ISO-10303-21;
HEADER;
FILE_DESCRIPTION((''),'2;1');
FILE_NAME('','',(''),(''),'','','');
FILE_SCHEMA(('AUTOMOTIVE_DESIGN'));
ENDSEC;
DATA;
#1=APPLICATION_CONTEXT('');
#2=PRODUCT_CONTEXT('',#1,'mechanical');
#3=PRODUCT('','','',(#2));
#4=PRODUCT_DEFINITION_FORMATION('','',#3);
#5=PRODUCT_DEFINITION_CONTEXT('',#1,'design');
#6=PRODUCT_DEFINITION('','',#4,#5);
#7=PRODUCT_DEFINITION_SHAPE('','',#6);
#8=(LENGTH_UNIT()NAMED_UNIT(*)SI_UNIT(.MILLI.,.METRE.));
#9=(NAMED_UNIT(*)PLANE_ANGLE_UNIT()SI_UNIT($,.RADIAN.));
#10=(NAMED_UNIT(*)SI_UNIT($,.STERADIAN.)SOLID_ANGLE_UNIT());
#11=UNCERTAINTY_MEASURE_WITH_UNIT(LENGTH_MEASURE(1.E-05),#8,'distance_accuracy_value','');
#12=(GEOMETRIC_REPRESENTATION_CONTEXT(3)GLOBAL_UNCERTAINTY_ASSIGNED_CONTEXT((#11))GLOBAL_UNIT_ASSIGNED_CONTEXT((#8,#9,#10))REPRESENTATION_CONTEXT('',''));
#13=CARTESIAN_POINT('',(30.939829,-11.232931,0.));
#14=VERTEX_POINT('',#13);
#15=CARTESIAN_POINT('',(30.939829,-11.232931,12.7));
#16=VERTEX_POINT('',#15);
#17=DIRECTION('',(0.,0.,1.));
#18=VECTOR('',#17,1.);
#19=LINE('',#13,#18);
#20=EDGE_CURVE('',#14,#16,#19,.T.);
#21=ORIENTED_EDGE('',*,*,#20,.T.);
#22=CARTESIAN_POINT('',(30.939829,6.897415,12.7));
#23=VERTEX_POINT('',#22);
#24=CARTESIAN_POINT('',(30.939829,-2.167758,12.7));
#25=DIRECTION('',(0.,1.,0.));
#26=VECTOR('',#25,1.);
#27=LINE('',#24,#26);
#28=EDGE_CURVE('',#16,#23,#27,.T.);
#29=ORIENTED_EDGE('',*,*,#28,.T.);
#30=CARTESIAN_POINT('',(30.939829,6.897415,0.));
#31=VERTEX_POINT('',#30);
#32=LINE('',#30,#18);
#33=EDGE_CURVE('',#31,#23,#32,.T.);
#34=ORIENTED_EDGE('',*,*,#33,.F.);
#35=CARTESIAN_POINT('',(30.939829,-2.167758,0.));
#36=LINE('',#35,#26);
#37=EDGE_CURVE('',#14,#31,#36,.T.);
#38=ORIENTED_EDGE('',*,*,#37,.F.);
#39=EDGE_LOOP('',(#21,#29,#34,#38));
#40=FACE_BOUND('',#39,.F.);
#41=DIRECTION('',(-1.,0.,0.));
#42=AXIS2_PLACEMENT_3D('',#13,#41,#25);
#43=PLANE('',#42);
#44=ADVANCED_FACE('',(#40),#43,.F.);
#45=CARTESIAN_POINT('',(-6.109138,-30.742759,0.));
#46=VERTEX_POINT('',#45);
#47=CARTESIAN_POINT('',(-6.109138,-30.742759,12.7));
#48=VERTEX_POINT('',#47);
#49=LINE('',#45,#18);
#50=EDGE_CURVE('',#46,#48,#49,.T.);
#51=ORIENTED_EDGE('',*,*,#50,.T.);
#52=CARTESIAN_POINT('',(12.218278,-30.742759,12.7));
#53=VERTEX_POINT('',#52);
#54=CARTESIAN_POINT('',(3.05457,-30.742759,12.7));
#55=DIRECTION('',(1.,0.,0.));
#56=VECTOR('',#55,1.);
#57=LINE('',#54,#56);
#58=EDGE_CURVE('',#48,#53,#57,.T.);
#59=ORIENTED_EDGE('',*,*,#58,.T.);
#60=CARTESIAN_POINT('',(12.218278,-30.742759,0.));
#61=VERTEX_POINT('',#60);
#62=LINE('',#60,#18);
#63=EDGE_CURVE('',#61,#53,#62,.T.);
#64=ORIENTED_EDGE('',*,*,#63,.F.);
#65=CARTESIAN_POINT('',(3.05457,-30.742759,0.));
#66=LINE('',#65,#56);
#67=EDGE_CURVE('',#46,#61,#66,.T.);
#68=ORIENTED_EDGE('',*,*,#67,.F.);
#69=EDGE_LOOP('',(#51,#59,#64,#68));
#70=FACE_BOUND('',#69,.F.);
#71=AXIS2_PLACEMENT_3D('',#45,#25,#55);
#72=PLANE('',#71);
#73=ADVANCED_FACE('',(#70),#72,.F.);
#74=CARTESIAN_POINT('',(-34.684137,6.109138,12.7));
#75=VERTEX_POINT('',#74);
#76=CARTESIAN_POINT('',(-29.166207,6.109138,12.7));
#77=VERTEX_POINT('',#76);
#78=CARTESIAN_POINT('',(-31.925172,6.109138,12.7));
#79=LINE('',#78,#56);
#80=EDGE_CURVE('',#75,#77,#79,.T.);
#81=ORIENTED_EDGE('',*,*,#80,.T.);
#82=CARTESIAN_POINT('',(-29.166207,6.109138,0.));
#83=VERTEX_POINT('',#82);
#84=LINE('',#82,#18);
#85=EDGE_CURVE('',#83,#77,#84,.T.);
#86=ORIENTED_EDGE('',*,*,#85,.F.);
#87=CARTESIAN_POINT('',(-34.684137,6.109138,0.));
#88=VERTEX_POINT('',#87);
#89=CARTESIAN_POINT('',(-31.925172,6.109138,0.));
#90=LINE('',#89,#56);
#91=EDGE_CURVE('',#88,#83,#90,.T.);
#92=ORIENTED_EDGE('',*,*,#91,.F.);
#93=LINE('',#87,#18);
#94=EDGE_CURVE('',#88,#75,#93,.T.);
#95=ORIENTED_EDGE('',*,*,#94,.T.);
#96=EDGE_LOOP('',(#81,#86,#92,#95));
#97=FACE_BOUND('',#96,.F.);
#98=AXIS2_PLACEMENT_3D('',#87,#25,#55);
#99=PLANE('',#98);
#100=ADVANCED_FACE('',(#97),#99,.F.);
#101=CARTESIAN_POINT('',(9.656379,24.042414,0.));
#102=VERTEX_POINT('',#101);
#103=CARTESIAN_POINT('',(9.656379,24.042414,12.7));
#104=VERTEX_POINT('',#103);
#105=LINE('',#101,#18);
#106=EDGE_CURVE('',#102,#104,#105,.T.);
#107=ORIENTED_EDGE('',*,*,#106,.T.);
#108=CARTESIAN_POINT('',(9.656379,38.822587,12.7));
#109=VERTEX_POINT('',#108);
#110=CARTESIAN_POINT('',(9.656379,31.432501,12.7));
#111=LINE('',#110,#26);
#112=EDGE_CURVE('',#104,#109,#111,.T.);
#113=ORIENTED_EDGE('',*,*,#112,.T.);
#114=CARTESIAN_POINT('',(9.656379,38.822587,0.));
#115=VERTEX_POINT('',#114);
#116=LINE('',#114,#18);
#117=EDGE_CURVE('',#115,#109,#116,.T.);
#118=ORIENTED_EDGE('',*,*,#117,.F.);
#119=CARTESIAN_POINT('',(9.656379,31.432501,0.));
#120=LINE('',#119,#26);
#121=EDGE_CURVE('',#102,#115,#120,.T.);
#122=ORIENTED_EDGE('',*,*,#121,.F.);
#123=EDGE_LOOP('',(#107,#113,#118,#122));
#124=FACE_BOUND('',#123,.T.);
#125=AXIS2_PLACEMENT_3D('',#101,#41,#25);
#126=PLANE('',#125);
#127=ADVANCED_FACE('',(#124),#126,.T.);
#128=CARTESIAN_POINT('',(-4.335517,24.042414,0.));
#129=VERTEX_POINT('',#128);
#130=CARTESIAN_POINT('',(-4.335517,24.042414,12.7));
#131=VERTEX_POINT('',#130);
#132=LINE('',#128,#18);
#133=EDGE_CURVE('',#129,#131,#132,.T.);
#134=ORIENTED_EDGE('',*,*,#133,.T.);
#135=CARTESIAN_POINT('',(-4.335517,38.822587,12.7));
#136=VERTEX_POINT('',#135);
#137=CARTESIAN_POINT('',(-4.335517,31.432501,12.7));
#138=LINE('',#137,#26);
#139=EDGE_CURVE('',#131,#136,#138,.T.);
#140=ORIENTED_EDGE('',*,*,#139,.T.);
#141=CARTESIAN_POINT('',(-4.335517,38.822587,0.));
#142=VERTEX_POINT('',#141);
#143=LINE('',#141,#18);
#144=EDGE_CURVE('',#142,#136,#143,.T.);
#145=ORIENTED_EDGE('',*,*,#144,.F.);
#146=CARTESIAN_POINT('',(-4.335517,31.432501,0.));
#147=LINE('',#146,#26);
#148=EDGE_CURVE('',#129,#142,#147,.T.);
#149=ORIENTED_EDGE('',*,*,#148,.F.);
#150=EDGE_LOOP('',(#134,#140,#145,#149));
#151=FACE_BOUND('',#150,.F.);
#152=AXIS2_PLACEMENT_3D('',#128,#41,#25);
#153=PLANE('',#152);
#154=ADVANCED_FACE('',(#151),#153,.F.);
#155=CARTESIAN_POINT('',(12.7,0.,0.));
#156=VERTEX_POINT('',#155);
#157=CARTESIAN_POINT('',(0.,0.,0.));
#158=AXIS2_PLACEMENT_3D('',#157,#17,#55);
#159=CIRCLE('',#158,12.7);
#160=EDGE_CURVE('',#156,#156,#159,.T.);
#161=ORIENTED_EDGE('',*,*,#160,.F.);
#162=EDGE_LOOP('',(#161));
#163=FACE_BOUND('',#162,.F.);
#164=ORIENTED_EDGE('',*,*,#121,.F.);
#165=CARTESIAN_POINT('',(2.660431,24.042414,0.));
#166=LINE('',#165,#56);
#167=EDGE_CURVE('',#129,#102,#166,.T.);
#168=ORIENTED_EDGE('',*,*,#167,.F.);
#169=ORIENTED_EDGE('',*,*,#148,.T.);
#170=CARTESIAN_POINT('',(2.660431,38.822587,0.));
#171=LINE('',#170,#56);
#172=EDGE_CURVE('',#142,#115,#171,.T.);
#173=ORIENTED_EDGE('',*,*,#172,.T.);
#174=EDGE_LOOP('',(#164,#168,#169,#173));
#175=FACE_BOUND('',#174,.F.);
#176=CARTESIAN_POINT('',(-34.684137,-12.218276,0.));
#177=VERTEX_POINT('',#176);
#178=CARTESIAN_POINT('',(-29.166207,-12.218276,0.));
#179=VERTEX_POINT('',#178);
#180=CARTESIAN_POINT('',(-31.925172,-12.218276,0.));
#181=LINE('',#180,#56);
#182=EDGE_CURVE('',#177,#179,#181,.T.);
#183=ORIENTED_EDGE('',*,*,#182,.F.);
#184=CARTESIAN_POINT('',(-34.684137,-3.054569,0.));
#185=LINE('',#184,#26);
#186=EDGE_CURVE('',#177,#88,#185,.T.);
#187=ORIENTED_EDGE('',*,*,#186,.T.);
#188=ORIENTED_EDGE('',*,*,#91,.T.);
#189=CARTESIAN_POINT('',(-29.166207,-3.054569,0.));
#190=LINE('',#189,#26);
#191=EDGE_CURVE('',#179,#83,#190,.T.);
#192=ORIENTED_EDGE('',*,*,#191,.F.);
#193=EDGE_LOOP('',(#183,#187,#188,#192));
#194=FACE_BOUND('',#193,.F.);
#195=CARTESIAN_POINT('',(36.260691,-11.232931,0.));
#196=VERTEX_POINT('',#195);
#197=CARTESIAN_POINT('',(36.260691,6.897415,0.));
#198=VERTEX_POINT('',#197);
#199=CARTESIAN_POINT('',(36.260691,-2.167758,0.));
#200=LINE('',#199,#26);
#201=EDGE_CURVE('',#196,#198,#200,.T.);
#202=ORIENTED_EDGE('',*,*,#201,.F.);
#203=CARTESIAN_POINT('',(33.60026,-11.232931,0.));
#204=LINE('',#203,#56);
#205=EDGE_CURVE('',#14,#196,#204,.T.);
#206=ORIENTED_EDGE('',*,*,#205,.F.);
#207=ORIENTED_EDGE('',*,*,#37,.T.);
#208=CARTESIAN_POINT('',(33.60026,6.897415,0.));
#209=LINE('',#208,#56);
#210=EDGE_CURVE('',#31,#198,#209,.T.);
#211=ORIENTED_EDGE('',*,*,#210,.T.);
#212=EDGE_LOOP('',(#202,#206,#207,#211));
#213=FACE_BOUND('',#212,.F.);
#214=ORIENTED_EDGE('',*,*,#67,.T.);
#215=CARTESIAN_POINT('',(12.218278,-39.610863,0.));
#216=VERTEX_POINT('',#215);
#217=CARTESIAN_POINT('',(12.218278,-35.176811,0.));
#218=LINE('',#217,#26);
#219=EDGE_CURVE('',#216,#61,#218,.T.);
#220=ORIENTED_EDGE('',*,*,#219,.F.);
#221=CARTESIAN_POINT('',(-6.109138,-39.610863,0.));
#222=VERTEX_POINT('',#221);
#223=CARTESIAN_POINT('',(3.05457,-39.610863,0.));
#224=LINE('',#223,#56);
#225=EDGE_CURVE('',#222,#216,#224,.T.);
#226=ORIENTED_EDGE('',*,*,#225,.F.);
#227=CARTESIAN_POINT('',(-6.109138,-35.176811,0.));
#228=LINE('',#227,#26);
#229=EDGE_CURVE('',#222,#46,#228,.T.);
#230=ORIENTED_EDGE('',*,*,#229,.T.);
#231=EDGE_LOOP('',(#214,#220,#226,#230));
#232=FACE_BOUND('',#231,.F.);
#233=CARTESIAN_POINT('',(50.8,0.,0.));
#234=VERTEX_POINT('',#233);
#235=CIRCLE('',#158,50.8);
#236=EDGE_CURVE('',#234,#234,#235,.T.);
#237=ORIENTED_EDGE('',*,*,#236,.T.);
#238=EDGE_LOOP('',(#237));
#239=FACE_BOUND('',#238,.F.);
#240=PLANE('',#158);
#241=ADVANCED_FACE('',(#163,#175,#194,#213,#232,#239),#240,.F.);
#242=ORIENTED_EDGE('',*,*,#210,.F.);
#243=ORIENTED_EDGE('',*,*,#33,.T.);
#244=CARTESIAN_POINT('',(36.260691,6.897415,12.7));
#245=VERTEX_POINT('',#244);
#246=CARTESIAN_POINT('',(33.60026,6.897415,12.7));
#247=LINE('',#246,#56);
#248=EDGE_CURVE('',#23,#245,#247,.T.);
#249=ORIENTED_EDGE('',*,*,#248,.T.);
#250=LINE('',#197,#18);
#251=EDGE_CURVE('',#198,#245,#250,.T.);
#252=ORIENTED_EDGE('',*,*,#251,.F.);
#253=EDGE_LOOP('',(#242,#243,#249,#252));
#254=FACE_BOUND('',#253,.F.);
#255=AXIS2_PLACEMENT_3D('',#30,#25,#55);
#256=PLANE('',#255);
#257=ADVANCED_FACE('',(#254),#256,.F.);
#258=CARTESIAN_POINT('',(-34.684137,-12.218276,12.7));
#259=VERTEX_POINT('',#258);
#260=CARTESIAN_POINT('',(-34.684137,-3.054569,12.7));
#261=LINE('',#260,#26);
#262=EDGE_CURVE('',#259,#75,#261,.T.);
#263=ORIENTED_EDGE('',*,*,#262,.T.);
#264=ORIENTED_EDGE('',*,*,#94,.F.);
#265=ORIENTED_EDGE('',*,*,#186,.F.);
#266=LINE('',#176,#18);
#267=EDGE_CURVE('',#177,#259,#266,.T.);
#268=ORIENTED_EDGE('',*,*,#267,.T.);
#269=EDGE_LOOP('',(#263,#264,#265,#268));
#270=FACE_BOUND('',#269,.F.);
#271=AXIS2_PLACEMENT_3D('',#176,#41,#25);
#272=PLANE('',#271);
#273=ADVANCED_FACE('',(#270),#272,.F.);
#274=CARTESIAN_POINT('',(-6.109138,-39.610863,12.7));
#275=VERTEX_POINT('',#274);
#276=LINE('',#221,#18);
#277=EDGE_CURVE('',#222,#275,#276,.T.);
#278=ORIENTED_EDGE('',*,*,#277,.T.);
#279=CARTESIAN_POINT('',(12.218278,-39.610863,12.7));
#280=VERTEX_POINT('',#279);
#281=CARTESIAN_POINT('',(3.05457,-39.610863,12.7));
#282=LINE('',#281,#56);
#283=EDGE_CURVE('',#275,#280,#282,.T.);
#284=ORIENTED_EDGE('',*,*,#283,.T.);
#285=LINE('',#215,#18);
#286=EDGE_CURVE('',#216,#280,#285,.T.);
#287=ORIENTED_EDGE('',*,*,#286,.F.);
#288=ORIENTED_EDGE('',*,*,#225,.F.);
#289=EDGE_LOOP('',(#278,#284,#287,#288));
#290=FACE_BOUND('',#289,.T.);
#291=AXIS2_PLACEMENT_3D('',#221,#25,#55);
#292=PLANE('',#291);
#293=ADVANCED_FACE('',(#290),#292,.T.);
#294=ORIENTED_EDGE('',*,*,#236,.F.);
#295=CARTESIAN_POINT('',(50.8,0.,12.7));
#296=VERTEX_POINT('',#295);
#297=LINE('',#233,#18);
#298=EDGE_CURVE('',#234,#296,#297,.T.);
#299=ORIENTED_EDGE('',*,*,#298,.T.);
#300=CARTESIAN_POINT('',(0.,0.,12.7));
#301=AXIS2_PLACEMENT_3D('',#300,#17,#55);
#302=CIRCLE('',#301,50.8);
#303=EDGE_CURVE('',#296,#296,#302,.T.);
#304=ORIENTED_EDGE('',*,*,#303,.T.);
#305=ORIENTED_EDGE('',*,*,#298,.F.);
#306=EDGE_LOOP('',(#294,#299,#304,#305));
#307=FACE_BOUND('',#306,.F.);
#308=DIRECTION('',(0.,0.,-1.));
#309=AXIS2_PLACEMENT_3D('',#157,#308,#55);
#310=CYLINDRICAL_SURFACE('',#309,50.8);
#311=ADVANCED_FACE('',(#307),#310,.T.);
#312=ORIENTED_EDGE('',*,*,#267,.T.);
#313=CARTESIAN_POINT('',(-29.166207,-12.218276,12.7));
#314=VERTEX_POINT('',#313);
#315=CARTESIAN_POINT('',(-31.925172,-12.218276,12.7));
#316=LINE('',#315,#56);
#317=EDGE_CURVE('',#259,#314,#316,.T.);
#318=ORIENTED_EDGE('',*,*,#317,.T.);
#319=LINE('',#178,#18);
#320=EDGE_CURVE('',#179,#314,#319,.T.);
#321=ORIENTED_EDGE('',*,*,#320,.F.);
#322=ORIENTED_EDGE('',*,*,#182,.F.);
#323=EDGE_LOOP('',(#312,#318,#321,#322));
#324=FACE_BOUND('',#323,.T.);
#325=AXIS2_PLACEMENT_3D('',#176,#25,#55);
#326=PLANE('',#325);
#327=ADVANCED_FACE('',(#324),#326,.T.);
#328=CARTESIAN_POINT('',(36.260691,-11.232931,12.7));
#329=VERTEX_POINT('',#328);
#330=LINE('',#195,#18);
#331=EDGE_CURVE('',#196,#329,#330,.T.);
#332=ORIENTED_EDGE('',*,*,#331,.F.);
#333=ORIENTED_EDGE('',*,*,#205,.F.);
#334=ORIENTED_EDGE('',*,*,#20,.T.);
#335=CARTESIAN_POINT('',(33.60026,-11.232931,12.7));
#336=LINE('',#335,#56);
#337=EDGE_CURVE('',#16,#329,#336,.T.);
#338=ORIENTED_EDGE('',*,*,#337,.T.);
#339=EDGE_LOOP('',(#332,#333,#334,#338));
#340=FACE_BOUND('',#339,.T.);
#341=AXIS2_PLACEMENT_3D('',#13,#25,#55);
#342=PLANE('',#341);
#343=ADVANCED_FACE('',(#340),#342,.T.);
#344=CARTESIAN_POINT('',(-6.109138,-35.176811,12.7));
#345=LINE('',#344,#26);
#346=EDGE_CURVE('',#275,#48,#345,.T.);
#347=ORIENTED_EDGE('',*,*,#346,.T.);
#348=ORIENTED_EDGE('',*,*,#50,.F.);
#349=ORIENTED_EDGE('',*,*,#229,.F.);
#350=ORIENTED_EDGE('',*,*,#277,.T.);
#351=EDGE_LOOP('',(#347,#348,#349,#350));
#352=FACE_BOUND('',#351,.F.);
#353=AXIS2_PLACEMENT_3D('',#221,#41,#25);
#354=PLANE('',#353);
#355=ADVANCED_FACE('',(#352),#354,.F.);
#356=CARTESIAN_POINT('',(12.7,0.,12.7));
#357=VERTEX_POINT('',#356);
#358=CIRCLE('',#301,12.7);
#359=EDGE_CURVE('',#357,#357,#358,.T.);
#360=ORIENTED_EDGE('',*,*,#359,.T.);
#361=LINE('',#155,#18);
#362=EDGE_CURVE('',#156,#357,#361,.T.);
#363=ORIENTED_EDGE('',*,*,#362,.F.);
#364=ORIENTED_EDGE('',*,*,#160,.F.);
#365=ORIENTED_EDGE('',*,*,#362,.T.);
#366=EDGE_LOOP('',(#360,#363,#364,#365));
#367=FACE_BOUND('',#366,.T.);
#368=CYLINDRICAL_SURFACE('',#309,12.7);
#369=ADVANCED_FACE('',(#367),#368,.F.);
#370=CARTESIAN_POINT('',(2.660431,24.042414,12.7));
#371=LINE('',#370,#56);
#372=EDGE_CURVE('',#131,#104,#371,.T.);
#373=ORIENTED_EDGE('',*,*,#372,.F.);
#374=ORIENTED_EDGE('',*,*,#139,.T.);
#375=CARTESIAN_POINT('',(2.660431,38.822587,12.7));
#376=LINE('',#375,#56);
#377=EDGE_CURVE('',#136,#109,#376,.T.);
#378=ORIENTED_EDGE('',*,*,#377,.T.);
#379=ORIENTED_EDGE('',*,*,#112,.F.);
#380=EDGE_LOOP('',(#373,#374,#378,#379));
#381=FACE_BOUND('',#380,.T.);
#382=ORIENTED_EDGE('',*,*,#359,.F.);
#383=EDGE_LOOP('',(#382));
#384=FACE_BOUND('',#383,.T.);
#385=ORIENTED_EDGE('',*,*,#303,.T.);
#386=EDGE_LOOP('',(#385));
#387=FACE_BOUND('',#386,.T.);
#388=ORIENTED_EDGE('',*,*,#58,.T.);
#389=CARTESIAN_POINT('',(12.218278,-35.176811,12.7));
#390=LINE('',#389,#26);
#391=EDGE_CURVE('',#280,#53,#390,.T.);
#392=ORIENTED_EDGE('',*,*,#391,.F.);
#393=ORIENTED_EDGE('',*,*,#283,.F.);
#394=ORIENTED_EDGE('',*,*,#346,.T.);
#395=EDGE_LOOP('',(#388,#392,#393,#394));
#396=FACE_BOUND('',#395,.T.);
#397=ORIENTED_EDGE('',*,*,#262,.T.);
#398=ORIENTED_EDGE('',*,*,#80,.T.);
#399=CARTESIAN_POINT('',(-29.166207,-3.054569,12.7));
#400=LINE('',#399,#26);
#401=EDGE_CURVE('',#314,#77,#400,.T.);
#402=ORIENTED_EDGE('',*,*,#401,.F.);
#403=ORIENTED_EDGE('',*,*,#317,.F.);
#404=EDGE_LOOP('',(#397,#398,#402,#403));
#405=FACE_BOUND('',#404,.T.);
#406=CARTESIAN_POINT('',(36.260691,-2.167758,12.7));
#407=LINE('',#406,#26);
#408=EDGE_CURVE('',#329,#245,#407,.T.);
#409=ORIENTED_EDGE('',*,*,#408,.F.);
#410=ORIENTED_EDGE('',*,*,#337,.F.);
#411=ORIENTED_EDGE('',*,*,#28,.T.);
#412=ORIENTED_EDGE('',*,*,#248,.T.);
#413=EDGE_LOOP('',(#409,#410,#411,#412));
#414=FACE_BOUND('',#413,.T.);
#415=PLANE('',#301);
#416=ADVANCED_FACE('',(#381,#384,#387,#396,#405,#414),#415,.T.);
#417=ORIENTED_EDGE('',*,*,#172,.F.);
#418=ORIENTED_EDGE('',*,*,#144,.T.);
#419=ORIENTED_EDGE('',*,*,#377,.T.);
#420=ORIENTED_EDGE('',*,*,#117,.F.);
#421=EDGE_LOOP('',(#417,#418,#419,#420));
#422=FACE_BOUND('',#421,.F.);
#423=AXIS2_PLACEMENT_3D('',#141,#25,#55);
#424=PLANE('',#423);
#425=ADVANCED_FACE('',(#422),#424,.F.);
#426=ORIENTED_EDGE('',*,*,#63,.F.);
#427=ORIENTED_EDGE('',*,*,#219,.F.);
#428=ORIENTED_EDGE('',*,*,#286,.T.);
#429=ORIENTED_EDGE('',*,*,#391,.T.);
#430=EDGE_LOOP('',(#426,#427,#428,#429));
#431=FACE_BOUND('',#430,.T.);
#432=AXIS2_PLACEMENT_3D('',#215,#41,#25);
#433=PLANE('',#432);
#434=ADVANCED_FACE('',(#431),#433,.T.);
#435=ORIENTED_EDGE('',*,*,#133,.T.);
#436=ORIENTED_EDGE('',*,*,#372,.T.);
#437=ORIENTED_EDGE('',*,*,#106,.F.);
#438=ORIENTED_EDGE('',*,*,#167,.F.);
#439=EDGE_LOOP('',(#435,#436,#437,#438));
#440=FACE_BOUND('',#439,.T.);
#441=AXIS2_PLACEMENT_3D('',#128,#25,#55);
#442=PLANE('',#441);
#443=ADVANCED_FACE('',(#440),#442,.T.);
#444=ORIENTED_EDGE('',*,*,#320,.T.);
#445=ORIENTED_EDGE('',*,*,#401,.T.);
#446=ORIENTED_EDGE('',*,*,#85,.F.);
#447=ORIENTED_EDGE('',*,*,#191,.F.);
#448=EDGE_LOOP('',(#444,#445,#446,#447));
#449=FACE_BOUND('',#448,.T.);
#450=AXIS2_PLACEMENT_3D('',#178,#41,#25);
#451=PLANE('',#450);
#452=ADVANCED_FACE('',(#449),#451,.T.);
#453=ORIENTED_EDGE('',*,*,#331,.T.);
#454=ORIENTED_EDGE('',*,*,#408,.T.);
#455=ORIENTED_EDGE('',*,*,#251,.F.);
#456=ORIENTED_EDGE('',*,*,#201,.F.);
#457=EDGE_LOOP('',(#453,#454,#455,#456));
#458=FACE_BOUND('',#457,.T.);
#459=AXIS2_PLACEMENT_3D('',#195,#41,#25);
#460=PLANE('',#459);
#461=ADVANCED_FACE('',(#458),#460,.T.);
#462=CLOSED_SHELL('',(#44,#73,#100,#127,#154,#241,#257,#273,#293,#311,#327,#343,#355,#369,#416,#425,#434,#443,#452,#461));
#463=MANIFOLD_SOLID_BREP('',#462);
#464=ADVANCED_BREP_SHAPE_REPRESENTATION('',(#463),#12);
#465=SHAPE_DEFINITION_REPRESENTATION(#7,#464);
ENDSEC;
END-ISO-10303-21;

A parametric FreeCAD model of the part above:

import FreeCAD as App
import Part
import Sketcher

V = App.Vector
Q = App.Units.Quantity

doc = App.newDocument("Part")
body = doc.addObject("PartDesign::Body", "Body")

sketch1 = body.newObject("Sketcher::SketchObject", "Sketch")
sketch1.AttachmentSupport = (doc.getObject("XY_Plane"), [""])
sketch1.MapMode = "FlatFace"
sketch1.addGeometry([
    Part.Circle(V(0, 0, 0), V(0, 0, 1), 51),
    Part.LineSegment(V(-29, -12, 0), V(-35, -12, 0)),
    Part.LineSegment(V(-35, -12, 0), V(-35, 6, 0)),
    Part.LineSegment(V(-35, 6, 0), V(-29, 6, 0)),
    Part.LineSegment(V(-29, 6, 0), V(-29, -12, 0)),
    Part.LineSegment(V(12, -40, 0), V(-6, -40, 0)),
    Part.LineSegment(V(-6, -40, 0), V(-6, -31, 0)),
    Part.LineSegment(V(-6, -31, 0), V(12, -31, 0)),
    Part.LineSegment(V(12, -31, 0), V(12, -40, 0)),
    Part.LineSegment(V(36, -11, 0), V(31, -11, 0)),
    Part.LineSegment(V(31, -11, 0), V(31, 7, 0)),
    Part.LineSegment(V(31, 7, 0), V(36, 7, 0)),
    Part.LineSegment(V(36, 7, 0), V(36, -11, 0)),
    Part.Circle(V(0, 0, 0), V(0, 0, 1), 13),
    Part.LineSegment(V(10, 24, 0), V(-4, 24, 0)),
    Part.LineSegment(V(-4, 24, 0), V(-4, 39, 0)),
    Part.LineSegment(V(-4, 39, 0), V(10, 39, 0)),
    Part.LineSegment(V(10, 39, 0), V(10, 24, 0)),
], False)
sketch1.addConstraint([
    Sketcher.Constraint("Coincident", 1, 2, 2, 1),
    Sketcher.Constraint("Coincident", 2, 2, 3, 1),
    Sketcher.Constraint("Coincident", 3, 2, 4, 1),
    Sketcher.Constraint("Coincident", 4, 2, 1, 1),
    Sketcher.Constraint("Coincident", 5, 2, 6, 1),
    Sketcher.Constraint("Coincident", 6, 2, 7, 1),
    Sketcher.Constraint("Coincident", 7, 2, 8, 1),
    Sketcher.Constraint("Coincident", 8, 2, 5, 1),
    Sketcher.Constraint("Coincident", 9, 2, 10, 1),
    Sketcher.Constraint("Coincident", 10, 2, 11, 1),
    Sketcher.Constraint("Coincident", 11, 2, 12, 1),
    Sketcher.Constraint("Coincident", 12, 2, 9, 1),
    Sketcher.Constraint("Coincident", 14, 2, 15, 1),
    Sketcher.Constraint("Coincident", 15, 2, 16, 1),
    Sketcher.Constraint("Coincident", 16, 2, 17, 1),
    Sketcher.Constraint("Coincident", 17, 2, 14, 1),
    Sketcher.Constraint("Horizontal", 1),
    Sketcher.Constraint("Vertical", 2),
    Sketcher.Constraint("Horizontal", 3),
    Sketcher.Constraint("Vertical", 4),
    Sketcher.Constraint("Horizontal", 5),
    Sketcher.Constraint("Vertical", 6),
    Sketcher.Constraint("Horizontal", 7),
    Sketcher.Constraint("Vertical", 8),
    Sketcher.Constraint("Horizontal", 9),
    Sketcher.Constraint("Vertical", 10),
    Sketcher.Constraint("Horizontal", 11),
    Sketcher.Constraint("Vertical", 12),
    Sketcher.Constraint("Horizontal", 14),
    Sketcher.Constraint("Vertical", 15),
    Sketcher.Constraint("Horizontal", 16),
    Sketcher.Constraint("Vertical", 17),
    Sketcher.Constraint("Coincident", 0, 3, -1, 1),
    Sketcher.Constraint("Coincident", 13, 3, -1, 1),
    Sketcher.Constraint("Diameter", 0, Q("4 in")),
    Sketcher.Constraint("Diameter", 13, Q("1 in")),
    Sketcher.Constraint("DistanceY", 5, 2, 3, 2, Q("1.8 in")),
    Sketcher.Constraint("DistanceX", 1, 2, 5, 2, Q("1.125 in")),
    Sketcher.Constraint("DistanceY", 10, 2, 14, 2, Q("0.675 in")),
    Sketcher.Constraint("DistanceX", 1, 2, 1, 1, 5.51793),
    Sketcher.Constraint("DistanceX", 5, 2, 5, 1, 18.327416),
    Sketcher.Constraint("DistanceX", 9, 2, 9, 1, 5.320862),
    Sketcher.Constraint("DistanceX", 14, 2, 14, 1, 13.991896),
    Sketcher.Constraint("DistanceY", 2, 1, 2, 2, 18.327414),
    Sketcher.Constraint("DistanceY", 6, 1, 6, 2, 8.868104),
    Sketcher.Constraint("DistanceY", 10, 1, 10, 2, 18.130345),
    Sketcher.Constraint("DistanceY", 15, 1, 15, 2, 14.780173),
    Sketcher.Constraint("DistanceY", 6, 2, -1, 1, 30.742759),
    Sketcher.Constraint("DistanceX", -1, 1, 9, 2, 30.939829),
    Sketcher.Constraint("DistanceY", 9, 2, -1, 1, 11.232931),
    Sketcher.Constraint("DistanceX", -1, 1, 16, 2, 9.656379),
    Sketcher.Constraint("DistanceX", 7, 2, 9, 2, 18.721551),
])
pad1 = body.newObject("PartDesign::Pad", "Pad")
pad1.Profile = sketch1
pad1.Length = Q("0.5 in")

doc.recompute()
